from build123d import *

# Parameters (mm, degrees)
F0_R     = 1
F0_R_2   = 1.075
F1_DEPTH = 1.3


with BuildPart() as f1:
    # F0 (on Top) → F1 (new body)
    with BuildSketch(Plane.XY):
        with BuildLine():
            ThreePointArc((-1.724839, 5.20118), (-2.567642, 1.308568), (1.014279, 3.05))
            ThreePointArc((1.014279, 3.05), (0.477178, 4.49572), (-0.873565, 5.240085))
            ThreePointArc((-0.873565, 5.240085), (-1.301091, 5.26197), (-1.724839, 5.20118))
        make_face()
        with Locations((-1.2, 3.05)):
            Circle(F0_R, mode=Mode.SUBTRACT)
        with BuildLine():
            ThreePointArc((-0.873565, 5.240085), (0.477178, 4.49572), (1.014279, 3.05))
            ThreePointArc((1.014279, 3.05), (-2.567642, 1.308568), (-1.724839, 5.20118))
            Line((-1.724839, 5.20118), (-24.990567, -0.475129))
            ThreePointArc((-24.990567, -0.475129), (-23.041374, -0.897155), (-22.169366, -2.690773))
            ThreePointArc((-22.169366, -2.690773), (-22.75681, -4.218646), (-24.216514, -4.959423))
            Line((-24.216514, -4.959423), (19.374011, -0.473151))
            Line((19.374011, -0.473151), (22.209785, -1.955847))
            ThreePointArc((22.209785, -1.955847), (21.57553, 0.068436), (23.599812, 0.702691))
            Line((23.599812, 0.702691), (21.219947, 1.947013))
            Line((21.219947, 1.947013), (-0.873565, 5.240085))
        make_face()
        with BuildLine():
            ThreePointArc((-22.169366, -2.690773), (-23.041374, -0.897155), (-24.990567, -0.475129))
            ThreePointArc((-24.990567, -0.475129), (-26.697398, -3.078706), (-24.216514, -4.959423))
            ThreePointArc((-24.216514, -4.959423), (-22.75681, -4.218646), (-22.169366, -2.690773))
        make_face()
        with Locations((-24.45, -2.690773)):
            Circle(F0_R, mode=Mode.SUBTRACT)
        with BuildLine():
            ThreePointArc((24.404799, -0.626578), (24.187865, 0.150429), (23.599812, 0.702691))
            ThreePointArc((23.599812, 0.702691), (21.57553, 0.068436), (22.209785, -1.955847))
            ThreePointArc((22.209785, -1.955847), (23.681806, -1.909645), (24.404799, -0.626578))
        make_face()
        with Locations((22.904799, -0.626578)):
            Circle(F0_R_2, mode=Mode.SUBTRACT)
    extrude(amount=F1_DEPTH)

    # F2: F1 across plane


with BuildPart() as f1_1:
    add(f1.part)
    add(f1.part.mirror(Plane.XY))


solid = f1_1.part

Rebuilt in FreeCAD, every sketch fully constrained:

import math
import FreeCAD as App
import Part
import Sketcher

V = App.Vector
Q = App.Units.Quantity

doc = App.newDocument("Part")
params = doc.addObject("Spreadsheet::Sheet", "Params")
for row, (alias, value) in enumerate([
    ("sketch1_diameter", "2 mm"),
    ("sketch1_diameter2", "2 mm"),
    ("sketch1_radius", "1.5 mm"),
    ("sketch1_diameter3", "2.15 mm"),
    ("sketch1_length", "3.2 mm"),
    ("pad1_length", "1.3 mm"),
], start=1):
    params.set(f"A{row}", alias)
    params.set(f"B{row}", "=" + value)
    params.setAlias(f"B{row}", alias)

body = doc.addObject("PartDesign::Body", "Body")

sketch1 = body.newObject("Sketcher::SketchObject", "Sketch")
sketch1.AttachmentSupport = (doc.getObject("XY_Plane"), [""])
sketch1.MapMode = "FlatFace"
sketch1.addGeometry([
    Part.ArcOfCircle(Part.Circle(V(-1.199999, 3.049987, 0), V(0, 0, 1), 2.214292), math.radians(81.522478), math.radians(103.710954)),
    Part.LineSegment(V(-1.724839, 5.20118, 0), V(-24.990567, -0.475129, 0)),
    Part.ArcOfCircle(Part.Circle(V(-24.45, -2.690773, 0), V(0, 0, 1), 2.280634), math.radians(103.711014), math.radians(275.876106)),
    Part.LineSegment(V(-24.216514, -4.959423, 0), V(19.374011, -0.473151, 0)),
    Part.LineSegment(V(19.374011, -0.473151, 0), V(22.209785, -1.955847, 0)),
    Part.ArcOfCircle(Part.Circle(V(22.904799, -0.626578, 0), V(0, 0, 1), 1.5), math.radians(-117.603021), math.radians(0.000014)),
    Part.ArcOfCircle(Part.Circle(V(22.904797, -0.62658, 0), V(0, 0, 1), 1.500002), math.radians(0.00007), math.radians(62.396971)),
    Part.LineSegment(V(23.599812, 0.702691, 0), V(21.219947, 1.947013, 0)),
    Part.LineSegment(V(21.219947, 1.947013, 0), V(-0.873565, 5.240085, 0)),
    Part.Circle(V(-24.45, -2.690773, 0), V(0, 0, 1), 1),
    Part.Circle(V(22.904799, -0.626578, 0), V(0, 0, 1), 1.075),
    Part.Circle(V(-1.2, 3.05, 0), V(0, 0, 1), 1),
], False)
sketch1.addConstraint([
    Sketcher.Constraint("Coincident", 0, 2, 1, 1),
    Sketcher.Constraint("Coincident", 1, 2, 2, 1),
    Sketcher.Constraint("Coincident", 2, 2, 3, 1),
    Sketcher.Constraint("Coincident", 3, 2, 4, 1),
    Sketcher.Constraint("Coincident", 4, 2, 5, 1),
    Sketcher.Constraint("Coincident", 5, 2, 6, 1),
    Sketcher.Constraint("Coincident", 6, 2, 7, 1),
    Sketcher.Constraint("Coincident", 7, 2, 8, 1),
    Sketcher.Constraint("Coincident", 8, 2, 0, 1),
    Sketcher.Constraint("Coincident", 6, 3, 5, 3),
    Sketcher.Constraint("Coincident", 9, 3, 2, 3),
    Sketcher.Constraint("Coincident", 10, 3, 5, 3),
    Sketcher.Constraint("Diameter", 9, Q("2 mm")),
    Sketcher.Constraint("Diameter", 11, Q("2 mm")),
    Sketcher.Constraint("Radius", 5, Q("1.5 mm")),
    Sketcher.Constraint("Diameter", 10, Q("2.15 mm")),
    Sketcher.Constraint("Distance", 4, Q("3.2 mm")),
    Sketcher.Constraint("DistanceX", 0, 3, -1, 1, Q("1.199999 mm")),
    Sketcher.Constraint("DistanceX", 11, 3, -1, 1, Q("1.2 mm")),
    Sketcher.Constraint("DistanceX", 2, 3, -1, 1, Q("24.45 mm")),
    Sketcher.Constraint("DistanceY", -1, 1, 11, 3, Q("3.05 mm")),
    Sketcher.Constraint("Radius", 0, Q("2.214292 mm")),
    Sketcher.Constraint("Radius", 2, Q("2.280634 mm")),
    Sketcher.Constraint("DistanceX", -1, 1, 5, 3, Q("22.904799 mm")),
    Sketcher.Constraint("DistanceY", 5, 3, -1, 1, Q("0.626578 mm")),
    Sketcher.Constraint("DistanceX", 0, 2, -1, 1, Q("1.724839 mm")),
    Sketcher.Constraint("DistanceY", -1, 1, 0, 2, Q("5.20118 mm")),
    Sketcher.Constraint("DistanceY", 1, 2, -1, 1, Q("0.475129 mm")),
    Sketcher.Constraint("DistanceX", -1, 1, 3, 2, Q("19.374011 mm")),
    Sketcher.Constraint("DistanceY", 3, 2, -1, 1, Q("0.473151 mm")),
    Sketcher.Constraint("DistanceX", -1, 1, 6, 2, Q("23.599812 mm")),
    Sketcher.Constraint("DistanceY", 2, 3, 0, 3, Q("5.74076 mm")),
    Sketcher.Constraint("DistanceY", 2, 2, 9, 3, Q("2.26865 mm")),
    Sketcher.Constraint("DistanceY", 4, 2, 5, 2, Q("1.329269 mm")),
    Sketcher.Constraint("DistanceX", 7, 2, 10, 3, Q("1.684852 mm")),
    Sketcher.Constraint("DistanceY", 10, 3, 7, 2, Q("2.573591 mm")),
    Sketcher.Constraint("DistanceY", 7, 2, 8, 2, Q("3.293072 mm")),
])
sketch1.setExpression("Constraints[12]", "Params.sketch1_diameter")
sketch1.setExpression("Constraints[13]", "Params.sketch1_diameter2")
sketch1.setExpression("Constraints[14]", "Params.sketch1_radius")
sketch1.setExpression("Constraints[15]", "Params.sketch1_diameter3")
sketch1.setExpression("Constraints[16]", "Params.sketch1_length")
pad1 = body.newObject("PartDesign::Pad", "Pad")
pad1.Profile = sketch1
pad1.setExpression("Length", "Params.pad1_length")
body2 = doc.addObject("PartDesign::Body", "Body001")
doc.recompute()

body2.BaseFeature = body
doc.recompute()

mirroring = doc.addObject("Part::Mirroring", "Mirroring")
mirroring.Source = body
mirroring.Base = V(0, 0, 0)
mirroring.Normal = V(0, 0, 1)
body3 = doc.addObject("PartDesign::Body", "Body002")
body3.BaseFeature = mirroring
boolean = body2.newObject("PartDesign::Boolean", "Boolean")
boolean.Type = "Fuse"
boolean.addObjects([body3])
doc.recompute()
mirroring.Visibility = False

doc.recompute()
